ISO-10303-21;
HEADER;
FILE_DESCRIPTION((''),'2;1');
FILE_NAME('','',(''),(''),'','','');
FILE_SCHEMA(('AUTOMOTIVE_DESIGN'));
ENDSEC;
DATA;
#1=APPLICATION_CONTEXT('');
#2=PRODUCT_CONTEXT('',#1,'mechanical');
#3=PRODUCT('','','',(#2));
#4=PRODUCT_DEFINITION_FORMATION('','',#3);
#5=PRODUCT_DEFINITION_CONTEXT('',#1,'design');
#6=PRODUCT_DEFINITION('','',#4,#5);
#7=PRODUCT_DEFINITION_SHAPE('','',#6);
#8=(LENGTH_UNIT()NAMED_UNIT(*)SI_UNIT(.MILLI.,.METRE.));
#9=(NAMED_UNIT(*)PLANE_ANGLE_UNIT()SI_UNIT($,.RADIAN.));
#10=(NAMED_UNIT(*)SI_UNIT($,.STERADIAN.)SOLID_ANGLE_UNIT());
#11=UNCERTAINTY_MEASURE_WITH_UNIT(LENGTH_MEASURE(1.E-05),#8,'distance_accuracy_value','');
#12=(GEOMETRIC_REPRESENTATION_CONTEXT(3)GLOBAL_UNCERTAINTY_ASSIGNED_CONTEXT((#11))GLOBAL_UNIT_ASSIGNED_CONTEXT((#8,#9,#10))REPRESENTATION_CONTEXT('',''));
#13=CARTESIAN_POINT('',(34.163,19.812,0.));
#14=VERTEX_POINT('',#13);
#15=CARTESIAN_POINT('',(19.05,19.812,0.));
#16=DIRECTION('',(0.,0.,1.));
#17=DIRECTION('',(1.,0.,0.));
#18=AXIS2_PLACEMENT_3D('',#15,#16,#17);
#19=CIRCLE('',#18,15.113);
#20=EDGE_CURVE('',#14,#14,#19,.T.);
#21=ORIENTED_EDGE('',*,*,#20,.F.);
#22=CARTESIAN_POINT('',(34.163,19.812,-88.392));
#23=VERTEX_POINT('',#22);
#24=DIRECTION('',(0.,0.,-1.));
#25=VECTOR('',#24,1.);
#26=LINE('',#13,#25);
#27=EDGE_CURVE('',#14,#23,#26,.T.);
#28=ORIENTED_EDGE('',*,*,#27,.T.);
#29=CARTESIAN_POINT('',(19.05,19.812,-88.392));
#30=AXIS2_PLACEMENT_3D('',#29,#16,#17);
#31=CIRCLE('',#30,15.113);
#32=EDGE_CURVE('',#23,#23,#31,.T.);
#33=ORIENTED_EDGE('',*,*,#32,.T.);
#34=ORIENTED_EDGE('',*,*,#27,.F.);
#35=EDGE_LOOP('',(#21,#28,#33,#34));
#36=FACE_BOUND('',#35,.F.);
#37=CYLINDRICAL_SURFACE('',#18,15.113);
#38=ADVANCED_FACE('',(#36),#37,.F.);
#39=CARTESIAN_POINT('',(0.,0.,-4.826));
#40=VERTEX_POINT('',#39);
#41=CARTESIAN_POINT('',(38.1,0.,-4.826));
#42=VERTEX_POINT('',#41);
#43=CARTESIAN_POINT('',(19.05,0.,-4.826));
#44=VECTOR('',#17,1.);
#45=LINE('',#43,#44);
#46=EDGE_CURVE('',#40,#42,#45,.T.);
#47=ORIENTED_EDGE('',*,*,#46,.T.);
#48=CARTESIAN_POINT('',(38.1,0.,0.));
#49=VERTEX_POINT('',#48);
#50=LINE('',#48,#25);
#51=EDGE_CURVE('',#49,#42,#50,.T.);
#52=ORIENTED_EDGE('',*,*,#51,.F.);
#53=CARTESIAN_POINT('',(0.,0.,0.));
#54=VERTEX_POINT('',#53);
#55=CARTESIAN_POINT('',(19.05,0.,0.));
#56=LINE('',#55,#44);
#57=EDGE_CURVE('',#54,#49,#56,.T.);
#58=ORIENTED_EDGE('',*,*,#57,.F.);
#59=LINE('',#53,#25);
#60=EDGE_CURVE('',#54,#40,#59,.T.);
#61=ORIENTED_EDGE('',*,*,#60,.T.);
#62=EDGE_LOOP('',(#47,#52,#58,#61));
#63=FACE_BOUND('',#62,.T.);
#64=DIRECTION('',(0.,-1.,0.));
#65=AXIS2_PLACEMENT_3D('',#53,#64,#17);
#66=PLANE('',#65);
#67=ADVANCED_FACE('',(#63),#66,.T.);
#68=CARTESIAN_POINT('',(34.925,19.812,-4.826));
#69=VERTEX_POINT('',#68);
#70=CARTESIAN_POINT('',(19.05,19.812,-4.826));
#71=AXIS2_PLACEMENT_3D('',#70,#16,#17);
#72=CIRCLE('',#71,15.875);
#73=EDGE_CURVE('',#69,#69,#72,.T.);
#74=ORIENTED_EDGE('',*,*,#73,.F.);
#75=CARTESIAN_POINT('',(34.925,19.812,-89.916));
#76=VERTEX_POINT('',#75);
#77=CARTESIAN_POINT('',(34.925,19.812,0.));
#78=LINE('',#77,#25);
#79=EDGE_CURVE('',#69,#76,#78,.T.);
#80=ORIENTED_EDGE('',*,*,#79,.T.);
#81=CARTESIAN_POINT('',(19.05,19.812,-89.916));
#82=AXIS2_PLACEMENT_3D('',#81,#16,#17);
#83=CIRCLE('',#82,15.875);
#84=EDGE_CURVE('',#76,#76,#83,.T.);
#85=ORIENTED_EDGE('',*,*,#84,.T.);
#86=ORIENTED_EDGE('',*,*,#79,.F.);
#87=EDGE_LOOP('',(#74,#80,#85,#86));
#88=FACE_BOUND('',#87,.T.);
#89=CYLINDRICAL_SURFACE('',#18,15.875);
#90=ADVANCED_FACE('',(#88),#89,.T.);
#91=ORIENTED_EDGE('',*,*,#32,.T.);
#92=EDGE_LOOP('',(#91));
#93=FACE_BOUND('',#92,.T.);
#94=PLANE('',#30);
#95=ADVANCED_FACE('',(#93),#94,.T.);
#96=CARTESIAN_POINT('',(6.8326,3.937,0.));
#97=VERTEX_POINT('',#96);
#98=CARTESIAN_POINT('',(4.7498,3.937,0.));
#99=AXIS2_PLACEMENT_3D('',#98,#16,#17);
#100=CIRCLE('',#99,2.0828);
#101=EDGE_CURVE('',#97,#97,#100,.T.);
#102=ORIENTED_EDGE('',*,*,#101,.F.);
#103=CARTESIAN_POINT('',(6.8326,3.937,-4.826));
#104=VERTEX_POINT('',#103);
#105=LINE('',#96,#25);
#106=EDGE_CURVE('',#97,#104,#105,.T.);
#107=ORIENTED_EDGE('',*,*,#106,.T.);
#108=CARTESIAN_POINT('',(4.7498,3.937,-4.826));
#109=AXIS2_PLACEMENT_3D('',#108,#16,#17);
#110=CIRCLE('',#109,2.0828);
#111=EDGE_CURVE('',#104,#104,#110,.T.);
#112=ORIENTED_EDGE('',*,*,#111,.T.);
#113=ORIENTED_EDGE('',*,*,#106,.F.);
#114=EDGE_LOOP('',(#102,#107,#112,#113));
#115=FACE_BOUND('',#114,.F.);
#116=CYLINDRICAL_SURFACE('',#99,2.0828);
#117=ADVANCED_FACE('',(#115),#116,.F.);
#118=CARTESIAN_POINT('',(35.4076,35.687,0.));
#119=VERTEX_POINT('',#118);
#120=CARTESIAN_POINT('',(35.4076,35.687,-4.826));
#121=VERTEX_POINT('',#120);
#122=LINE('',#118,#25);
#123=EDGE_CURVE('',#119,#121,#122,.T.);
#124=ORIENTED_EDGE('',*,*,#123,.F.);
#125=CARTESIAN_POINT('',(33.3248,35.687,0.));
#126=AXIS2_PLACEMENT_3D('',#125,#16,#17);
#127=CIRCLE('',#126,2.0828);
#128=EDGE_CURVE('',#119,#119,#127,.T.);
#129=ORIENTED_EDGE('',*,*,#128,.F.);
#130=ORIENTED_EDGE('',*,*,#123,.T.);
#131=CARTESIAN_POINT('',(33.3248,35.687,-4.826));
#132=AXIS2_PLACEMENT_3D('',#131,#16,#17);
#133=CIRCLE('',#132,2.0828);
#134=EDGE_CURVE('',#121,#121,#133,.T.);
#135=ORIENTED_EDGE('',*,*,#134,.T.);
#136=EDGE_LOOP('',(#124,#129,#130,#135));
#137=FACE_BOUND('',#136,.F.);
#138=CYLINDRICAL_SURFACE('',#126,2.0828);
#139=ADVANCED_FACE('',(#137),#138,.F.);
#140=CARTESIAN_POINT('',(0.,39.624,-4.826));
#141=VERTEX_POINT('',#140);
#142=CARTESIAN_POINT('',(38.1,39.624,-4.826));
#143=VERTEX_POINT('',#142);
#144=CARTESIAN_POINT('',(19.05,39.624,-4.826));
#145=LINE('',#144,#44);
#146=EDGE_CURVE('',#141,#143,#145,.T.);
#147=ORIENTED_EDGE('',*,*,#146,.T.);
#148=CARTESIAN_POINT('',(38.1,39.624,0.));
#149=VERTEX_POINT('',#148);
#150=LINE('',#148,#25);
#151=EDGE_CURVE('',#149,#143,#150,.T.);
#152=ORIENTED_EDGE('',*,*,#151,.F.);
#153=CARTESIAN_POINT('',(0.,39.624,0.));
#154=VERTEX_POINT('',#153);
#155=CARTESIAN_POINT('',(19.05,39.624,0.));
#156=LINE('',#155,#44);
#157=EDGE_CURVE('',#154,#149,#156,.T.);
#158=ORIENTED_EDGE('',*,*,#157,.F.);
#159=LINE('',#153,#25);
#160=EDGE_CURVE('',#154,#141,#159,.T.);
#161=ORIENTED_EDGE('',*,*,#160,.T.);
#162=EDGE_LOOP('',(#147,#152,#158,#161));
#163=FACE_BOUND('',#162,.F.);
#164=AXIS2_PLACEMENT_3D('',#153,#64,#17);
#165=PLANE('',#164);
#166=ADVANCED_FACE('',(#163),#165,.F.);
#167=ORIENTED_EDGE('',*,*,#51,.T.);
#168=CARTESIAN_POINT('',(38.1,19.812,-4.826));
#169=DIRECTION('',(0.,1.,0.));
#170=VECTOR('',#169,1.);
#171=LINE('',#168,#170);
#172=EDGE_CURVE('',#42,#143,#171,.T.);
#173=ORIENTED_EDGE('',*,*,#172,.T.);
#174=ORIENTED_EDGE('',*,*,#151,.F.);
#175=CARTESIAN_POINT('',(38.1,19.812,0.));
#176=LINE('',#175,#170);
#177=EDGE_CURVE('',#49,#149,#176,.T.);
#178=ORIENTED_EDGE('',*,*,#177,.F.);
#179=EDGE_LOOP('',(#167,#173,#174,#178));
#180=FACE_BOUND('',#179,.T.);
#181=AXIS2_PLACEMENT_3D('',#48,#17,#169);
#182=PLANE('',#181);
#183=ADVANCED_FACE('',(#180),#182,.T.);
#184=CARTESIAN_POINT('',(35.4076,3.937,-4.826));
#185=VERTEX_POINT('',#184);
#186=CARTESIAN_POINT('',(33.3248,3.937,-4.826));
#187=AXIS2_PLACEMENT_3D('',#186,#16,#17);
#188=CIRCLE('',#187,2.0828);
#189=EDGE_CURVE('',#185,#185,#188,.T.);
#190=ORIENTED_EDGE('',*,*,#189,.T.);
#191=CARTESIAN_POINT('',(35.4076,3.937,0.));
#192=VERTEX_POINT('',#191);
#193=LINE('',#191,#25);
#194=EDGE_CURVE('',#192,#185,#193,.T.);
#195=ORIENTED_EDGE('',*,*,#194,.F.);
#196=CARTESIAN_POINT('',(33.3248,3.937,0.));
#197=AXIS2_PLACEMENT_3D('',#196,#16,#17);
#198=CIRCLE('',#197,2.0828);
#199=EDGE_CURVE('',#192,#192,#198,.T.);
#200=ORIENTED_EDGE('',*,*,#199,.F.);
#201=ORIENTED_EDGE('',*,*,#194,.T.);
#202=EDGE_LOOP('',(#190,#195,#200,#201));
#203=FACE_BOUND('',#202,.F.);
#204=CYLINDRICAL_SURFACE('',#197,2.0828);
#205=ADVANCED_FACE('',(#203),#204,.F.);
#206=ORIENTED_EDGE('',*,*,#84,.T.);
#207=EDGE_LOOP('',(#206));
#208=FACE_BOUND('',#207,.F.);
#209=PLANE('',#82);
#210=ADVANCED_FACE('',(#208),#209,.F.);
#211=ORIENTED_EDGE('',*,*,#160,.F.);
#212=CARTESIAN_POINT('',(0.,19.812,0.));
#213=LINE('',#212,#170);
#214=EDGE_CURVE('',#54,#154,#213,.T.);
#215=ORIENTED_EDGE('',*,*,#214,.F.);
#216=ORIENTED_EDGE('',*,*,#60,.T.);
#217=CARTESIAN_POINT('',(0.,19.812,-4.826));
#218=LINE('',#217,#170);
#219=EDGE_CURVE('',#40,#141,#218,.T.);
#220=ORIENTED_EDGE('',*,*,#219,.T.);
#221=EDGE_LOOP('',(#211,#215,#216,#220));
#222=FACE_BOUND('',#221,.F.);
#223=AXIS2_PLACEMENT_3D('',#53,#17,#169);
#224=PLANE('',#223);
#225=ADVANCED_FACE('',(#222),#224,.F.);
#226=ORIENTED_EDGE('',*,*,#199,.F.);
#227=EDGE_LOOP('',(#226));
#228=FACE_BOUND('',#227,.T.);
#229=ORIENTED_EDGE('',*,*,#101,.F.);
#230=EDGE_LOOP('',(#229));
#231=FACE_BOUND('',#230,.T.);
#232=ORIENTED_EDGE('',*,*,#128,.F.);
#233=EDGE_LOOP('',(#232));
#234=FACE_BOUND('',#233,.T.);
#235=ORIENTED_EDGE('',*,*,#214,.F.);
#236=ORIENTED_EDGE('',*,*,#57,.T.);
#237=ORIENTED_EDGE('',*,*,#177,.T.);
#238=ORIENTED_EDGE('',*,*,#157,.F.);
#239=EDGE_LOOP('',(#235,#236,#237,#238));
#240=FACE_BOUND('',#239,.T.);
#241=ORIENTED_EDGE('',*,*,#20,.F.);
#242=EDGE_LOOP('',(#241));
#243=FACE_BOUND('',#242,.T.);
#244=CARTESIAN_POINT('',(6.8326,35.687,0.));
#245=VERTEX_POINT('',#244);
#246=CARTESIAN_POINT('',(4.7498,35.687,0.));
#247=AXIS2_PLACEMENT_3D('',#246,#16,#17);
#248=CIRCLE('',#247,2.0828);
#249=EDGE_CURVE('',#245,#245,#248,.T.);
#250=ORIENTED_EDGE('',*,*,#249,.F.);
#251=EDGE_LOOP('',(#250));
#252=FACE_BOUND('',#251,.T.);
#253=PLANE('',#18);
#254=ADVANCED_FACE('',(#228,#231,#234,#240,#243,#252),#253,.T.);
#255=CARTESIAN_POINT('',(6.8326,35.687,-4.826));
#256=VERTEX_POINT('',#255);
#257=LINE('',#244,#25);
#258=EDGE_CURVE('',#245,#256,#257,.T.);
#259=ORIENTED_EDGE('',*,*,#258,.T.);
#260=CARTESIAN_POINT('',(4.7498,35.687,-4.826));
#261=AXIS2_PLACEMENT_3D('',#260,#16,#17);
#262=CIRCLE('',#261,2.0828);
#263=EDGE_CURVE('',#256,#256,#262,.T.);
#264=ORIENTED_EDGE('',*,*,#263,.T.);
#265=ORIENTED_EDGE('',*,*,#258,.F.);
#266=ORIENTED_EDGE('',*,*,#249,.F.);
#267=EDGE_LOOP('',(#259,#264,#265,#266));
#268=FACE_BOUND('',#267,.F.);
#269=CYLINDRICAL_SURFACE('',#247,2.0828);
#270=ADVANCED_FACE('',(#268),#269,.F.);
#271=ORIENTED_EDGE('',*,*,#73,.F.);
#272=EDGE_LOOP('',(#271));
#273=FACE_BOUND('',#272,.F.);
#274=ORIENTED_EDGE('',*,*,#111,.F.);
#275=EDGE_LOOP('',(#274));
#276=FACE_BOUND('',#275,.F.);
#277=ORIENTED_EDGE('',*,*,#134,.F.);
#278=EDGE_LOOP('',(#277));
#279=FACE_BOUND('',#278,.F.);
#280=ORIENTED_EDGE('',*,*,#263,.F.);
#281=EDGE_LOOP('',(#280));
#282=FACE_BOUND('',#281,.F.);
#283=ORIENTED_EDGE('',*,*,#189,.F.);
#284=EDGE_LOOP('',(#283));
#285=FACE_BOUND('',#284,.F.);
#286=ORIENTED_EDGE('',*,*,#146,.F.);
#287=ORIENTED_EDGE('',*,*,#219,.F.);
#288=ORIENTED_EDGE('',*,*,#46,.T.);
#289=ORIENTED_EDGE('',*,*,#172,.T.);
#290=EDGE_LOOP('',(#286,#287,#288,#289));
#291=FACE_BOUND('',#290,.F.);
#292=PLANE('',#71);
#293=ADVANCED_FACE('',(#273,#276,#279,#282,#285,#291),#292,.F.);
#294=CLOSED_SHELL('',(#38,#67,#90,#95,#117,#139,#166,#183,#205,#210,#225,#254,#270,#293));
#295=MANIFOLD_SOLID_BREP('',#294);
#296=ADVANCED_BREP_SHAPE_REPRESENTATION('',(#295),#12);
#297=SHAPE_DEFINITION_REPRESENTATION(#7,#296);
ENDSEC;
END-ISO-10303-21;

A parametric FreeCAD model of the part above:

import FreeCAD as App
import Part
import Sketcher

V = App.Vector
Q = App.Units.Quantity


def add_polygon(sketch, points):
    """Adds a closed chain of lines whose ends are joined by coincident constraints."""
    first, n = sketch.GeometryCount, len(points)
    for a, b in zip(points, points[1:] + points[:1]):
        sketch.addGeometry(Part.LineSegment(App.Vector(*a, 0), App.Vector(*b, 0)), False)
    for i in range(n):
        sketch.addConstraint(Sketcher.Constraint("Coincident", first + i, 2, first + (i + 1) % n, 1))

doc = App.newDocument("Part")
body = doc.addObject("PartDesign::Body", "Body")

# Sketch on XY plane
sketch1 = doc.addObject("Sketcher::SketchObject", "Sketch")
body.addObject(sketch1)
sketch1.AttachmentSupport = (doc.XY_Plane, [""])
sketch1.MapMode = "FlatFace"
add_polygon(sketch1, [(0, 39.624), (0, 0), (38.1, 0), (38.1, 39.624)])  # lines 0-3
sketch1.addConstraint(Sketcher.Constraint("Vertical", 0))
sketch1.addConstraint(Sketcher.Constraint("Horizontal", 1))
sketch1.addConstraint(Sketcher.Constraint("Vertical", 2))
sketch1.addConstraint(Sketcher.Constraint("Horizontal", 3))
sketch1.addConstraint(Sketcher.Constraint("Coincident", 0, 2, -1, 1))
sketch1.addConstraint(Sketcher.Constraint("DistanceX", 1, 1, 1, 2, Q("1.5 in")))
sketch1.addConstraint(Sketcher.Constraint("DistanceY", 0, 2, 0, 1, Q("1.56 in")))
pad1 = doc.addObject("PartDesign::Pad", "Pad")
body.addObject(pad1)
pad1.Profile = sketch1
pad1.Length = Q("0.19 in")
pad1.Reversed = True

# Sketch on XY plane
sketch2 = doc.addObject("Sketcher::SketchObject", "Sketch001")
body.addObject(sketch2)
sketch2.AttachmentSupport = (doc.XY_Plane, [""])
sketch2.MapMode = "FlatFace"
sketch2.addGeometry(Part.Circle(V(19.05, 19.812, 0), V(0, 0, 1), 15.875), False)
sketch2.addConstraint(Sketcher.Constraint("Diameter", 0, Q("1.25 in")))
sketch2.addConstraint(Sketcher.Constraint("DistanceX", -1, 1, 0, 3, Q("0.75 in")))
sketch2.addConstraint(Sketcher.Constraint("DistanceY", -1, 1, 0, 3, Q("0.78 in")))
pad2 = doc.addObject("PartDesign::Pad", "Pad001")
body.addObject(pad2)
pad2.Profile = sketch2
pad2.Length = Q("3.54 in")
pad2.Reversed = True

# Sketch on XY plane
sketch3 = doc.addObject("Sketcher::SketchObject", "Sketch002")
body.addObject(sketch3)
sketch3.AttachmentSupport = (doc.XY_Plane, [""])
sketch3.MapMode = "FlatFace"
sketch3.addGeometry(Part.Circle(V(19.05, 19.812, 0), V(0, 0, 1), 15.113), False)
sketch3.addConstraint(Sketcher.Constraint("Diameter", 0, Q("1.19 in")))
sketch3.addConstraint(Sketcher.Constraint("DistanceX", -1, 1, 0, 3, Q("0.75 in")))
sketch3.addConstraint(Sketcher.Constraint("DistanceY", -1, 1, 0, 3, Q("0.78 in")))
pocket1 = doc.addObject("PartDesign::Pocket", "Pocket")
body.addObject(pocket1)
pocket1.Profile = sketch3
pocket1.Length = Q("3.48 in")

# Sketch on XY plane
sketch4 = doc.addObject("Sketcher::SketchObject", "Sketch003")
body.addObject(sketch4)
sketch4.AttachmentSupport = (doc.XY_Plane, [""])
sketch4.MapMode = "FlatFace"
sketch4.addGeometry(Part.Circle(V(33.3248, 35.687, 0), V(0, 0, 1), 2.0828), False)
sketch4.addGeometry(Part.Circle(V(33.3248, 3.937, 0), V(0, 0, 1), 2.0828), False)
sketch4.addGeometry(Part.Circle(V(4.7498, 35.687, 0), V(0, 0, 1), 2.0828), False)
sketch4.addGeometry(Part.Circle(V(4.7498, 3.937, 0), V(0, 0, 1), 2.0828), False)
sketch4.addConstraint(Sketcher.Constraint("Equal", 0, 1))
sketch4.addConstraint(Sketcher.Constraint("Equal", 1, 2))
sketch4.addConstraint(Sketcher.Constraint("Equal", 2, 3))
sketch4.addConstraint(Sketcher.Constraint("Horizontal", 0, 3, 2, 3))
sketch4.addConstraint(Sketcher.Constraint("Horizontal", 1, 3, 3, 3))
sketch4.addConstraint(Sketcher.Constraint("Vertical", 0, 3, 1, 3))
sketch4.addConstraint(Sketcher.Constraint("Vertical", 2, 3, 3, 3))
sketch4.addConstraint(Sketcher.Constraint("Diameter", 0, Q("0.164 in")))
sketch4.addConstraint(Sketcher.Constraint("DistanceY", 1, 3, 0, 3, Q("1.25 in")))
sketch4.addConstraint(Sketcher.Constraint("DistanceX", -1, 1, 0, 3, Q("1.312 in")))
sketch4.addConstraint(Sketcher.Constraint("DistanceY", -1, 1, 0, 3, Q("1.405 in")))
sketch4.addConstraint(Sketcher.Constraint("DistanceX", -1, 1, 2, 3, Q("0.187 in")))
pocket2 = doc.addObject("PartDesign::Pocket", "Pocket001")
body.addObject(pocket2)
pocket2.Profile = sketch4
pocket2.Type = "ThroughAll"

doc.recompute()
